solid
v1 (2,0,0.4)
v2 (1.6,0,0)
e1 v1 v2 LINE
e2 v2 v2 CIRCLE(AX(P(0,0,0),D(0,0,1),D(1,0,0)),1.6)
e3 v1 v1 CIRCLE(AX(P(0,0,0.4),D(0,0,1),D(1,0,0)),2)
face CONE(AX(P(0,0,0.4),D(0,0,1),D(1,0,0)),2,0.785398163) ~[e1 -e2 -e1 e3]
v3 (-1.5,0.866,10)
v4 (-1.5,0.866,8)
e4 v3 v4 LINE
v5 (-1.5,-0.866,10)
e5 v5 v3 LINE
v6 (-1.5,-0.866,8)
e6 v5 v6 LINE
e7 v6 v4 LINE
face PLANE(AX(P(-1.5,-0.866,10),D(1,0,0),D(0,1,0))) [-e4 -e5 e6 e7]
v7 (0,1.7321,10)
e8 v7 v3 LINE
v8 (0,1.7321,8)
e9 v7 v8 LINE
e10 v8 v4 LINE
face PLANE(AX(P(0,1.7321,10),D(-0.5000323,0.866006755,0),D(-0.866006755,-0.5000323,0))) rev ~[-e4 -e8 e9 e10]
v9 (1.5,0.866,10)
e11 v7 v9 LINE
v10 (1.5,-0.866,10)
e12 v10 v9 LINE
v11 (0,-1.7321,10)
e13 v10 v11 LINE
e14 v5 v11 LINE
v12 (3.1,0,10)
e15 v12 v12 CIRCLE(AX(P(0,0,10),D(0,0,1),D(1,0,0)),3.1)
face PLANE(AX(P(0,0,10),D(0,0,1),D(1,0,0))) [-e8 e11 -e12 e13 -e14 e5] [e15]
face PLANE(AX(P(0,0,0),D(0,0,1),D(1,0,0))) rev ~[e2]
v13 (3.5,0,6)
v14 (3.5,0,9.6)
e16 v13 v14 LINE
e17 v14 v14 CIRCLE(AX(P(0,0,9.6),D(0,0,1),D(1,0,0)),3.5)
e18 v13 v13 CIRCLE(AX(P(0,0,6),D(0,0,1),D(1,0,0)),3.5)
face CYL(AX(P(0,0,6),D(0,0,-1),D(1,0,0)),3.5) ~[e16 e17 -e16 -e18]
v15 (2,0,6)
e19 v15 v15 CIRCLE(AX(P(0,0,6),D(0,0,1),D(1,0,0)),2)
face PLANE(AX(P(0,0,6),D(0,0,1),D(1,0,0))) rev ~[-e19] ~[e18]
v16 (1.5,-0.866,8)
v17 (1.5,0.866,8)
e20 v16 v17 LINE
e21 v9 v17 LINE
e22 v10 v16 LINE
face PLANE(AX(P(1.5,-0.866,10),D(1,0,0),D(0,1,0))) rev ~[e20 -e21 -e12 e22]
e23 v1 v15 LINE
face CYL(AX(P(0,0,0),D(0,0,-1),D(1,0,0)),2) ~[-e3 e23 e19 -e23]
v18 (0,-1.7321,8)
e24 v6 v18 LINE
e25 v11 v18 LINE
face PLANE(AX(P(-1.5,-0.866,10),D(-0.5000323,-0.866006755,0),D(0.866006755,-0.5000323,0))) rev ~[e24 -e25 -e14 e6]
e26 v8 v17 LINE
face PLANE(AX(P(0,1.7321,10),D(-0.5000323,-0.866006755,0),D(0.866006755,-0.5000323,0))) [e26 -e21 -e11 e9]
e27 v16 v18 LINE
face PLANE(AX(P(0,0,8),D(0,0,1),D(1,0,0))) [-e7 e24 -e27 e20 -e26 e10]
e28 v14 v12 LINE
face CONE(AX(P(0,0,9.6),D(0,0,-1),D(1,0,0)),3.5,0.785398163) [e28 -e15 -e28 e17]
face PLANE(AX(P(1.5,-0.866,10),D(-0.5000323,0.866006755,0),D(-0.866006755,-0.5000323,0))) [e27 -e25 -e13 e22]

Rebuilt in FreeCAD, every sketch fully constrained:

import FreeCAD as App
import Part
import Sketcher
from FreeCAD import Vector
Q = App.Units.Quantity


def edges_at(feature, points):
    """Names of the edges that pass closest to the given points."""
    edges = feature.Shape.Edges
    near = lambda p: min(range(len(edges)), key=lambda i: edges[i].distToShape(Part.Vertex(*p))[0])
    return sorted({f"Edge{near(p) + 1}" for p in points})

doc = App.newDocument("Part")
body = doc.addObject("PartDesign::Body", "Body")

sketch1 = doc.addObject("Sketcher::SketchObject", "Sketch")
body.addObject(sketch1)
sketch1.AttachmentSupport = (doc.XY_Plane, [""])
sketch1.MapMode = "FlatFace"
sketch1.addGeometry(Part.Circle(Vector(0, 0, 0), Vector(0, 0, 1), 2), False)
sketch1.addConstraint([
    Sketcher.Constraint("Coincident", 0, 3, -1, 1),
    Sketcher.Constraint("Diameter", 0, Q("4 mm")),
])
pad1 = doc.addObject("PartDesign::Pad", "Pad")
body.addObject(pad1)
pad1.Profile = sketch1
pad1.Length = 6

sketch2 = doc.addObject("Sketcher::SketchObject", "Sketch001")
body.addObject(sketch2)
sketch2.AttachmentSupport = (doc.XY_Plane, [""])
sketch2.MapMode = "FlatFace"
sketch2.AttachmentOffset = App.Placement(Vector(0, 0, 6), App.Rotation())
sketch2.addGeometry(Part.Circle(Vector(0, 0, 0), Vector(0, 0, 1), 3.5), False)
sketch2.addConstraint([
    Sketcher.Constraint("Coincident", 0, 3, -1, 1),
    Sketcher.Constraint("Diameter", 0, Q("7 mm")),
])
pad2 = doc.addObject("PartDesign::Pad", "Pad001")
body.addObject(pad2)
pad2.Profile = sketch2
pad2.Length = 4

sketch3 = doc.addObject("Sketcher::SketchObject", "Sketch002")
body.addObject(sketch3)
sketch3.AttachmentSupport = (doc.XY_Plane, [""])
sketch3.MapMode = "FlatFace"
sketch3.AttachmentOffset = App.Placement(Vector(0, 0, 10), App.Rotation())
sketch3.addGeometry([
    Part.LineSegment(Vector(1.5, 0.9, 0), Vector(0, 1.7, 0)),
    Part.LineSegment(Vector(0, 1.7, 0), Vector(-1.5, 0.9, 0)),
    Part.LineSegment(Vector(-1.5, 0.9, 0), Vector(-1.5, -0.9, 0)),
    Part.LineSegment(Vector(-1.5, -0.9, 0), Vector(0, -1.7, 0)),
    Part.LineSegment(Vector(0, -1.7, 0), Vector(1.5, -0.9, 0)),
    Part.LineSegment(Vector(1.5, -0.9, 0), Vector(1.5, 0.9, 0)),
], False)
sketch3.addConstraint([
    Sketcher.Constraint("Coincident", 0, 2, 1, 1),
    Sketcher.Constraint("Coincident", 1, 2, 2, 1),
    Sketcher.Constraint("Coincident", 2, 2, 3, 1),
    Sketcher.Constraint("Coincident", 3, 2, 4, 1),
    Sketcher.Constraint("Coincident", 4, 2, 5, 1),
    Sketcher.Constraint("Coincident", 5, 2, 0, 1),
    Sketcher.Constraint("Vertical", 2),
    Sketcher.Constraint("Vertical", 5),
    Sketcher.Constraint("Symmetric", 0, 2, 3, 2, -1, 1),
    Sketcher.Constraint("Symmetric", 1, 2, 4, 2, -1, 1),
    Sketcher.Constraint("PointOnObject", 0, 2, -2),
    Sketcher.Constraint("Parallel", 0, 3),
    Sketcher.Constraint("Horizontal", 2, 2, 4, 2),
    Sketcher.Constraint("DistanceX", 2, 2, 4, 2, Q("3 mm")),
    Sketcher.Constraint("DistanceY", 2, 2, 2, 1, Q("1.732 mm")),
    Sketcher.Constraint("Distance", 0, Q("1.732 mm")),
])
pocket1 = doc.addObject("PartDesign::Pocket", "Pocket")
body.addObject(pocket1)
pocket1.Profile = sketch3
pocket1.Length = 2
doc.recompute()

chamfer = doc.addObject("PartDesign::Chamfer", "Chamfer")
body.addObject(chamfer)
chamfer.Base = (pocket1, edges_at(pocket1, [(-3.5, 0, 10), (-2, 0, 0)]))
chamfer.Size = 0.4

doc.recompute()
